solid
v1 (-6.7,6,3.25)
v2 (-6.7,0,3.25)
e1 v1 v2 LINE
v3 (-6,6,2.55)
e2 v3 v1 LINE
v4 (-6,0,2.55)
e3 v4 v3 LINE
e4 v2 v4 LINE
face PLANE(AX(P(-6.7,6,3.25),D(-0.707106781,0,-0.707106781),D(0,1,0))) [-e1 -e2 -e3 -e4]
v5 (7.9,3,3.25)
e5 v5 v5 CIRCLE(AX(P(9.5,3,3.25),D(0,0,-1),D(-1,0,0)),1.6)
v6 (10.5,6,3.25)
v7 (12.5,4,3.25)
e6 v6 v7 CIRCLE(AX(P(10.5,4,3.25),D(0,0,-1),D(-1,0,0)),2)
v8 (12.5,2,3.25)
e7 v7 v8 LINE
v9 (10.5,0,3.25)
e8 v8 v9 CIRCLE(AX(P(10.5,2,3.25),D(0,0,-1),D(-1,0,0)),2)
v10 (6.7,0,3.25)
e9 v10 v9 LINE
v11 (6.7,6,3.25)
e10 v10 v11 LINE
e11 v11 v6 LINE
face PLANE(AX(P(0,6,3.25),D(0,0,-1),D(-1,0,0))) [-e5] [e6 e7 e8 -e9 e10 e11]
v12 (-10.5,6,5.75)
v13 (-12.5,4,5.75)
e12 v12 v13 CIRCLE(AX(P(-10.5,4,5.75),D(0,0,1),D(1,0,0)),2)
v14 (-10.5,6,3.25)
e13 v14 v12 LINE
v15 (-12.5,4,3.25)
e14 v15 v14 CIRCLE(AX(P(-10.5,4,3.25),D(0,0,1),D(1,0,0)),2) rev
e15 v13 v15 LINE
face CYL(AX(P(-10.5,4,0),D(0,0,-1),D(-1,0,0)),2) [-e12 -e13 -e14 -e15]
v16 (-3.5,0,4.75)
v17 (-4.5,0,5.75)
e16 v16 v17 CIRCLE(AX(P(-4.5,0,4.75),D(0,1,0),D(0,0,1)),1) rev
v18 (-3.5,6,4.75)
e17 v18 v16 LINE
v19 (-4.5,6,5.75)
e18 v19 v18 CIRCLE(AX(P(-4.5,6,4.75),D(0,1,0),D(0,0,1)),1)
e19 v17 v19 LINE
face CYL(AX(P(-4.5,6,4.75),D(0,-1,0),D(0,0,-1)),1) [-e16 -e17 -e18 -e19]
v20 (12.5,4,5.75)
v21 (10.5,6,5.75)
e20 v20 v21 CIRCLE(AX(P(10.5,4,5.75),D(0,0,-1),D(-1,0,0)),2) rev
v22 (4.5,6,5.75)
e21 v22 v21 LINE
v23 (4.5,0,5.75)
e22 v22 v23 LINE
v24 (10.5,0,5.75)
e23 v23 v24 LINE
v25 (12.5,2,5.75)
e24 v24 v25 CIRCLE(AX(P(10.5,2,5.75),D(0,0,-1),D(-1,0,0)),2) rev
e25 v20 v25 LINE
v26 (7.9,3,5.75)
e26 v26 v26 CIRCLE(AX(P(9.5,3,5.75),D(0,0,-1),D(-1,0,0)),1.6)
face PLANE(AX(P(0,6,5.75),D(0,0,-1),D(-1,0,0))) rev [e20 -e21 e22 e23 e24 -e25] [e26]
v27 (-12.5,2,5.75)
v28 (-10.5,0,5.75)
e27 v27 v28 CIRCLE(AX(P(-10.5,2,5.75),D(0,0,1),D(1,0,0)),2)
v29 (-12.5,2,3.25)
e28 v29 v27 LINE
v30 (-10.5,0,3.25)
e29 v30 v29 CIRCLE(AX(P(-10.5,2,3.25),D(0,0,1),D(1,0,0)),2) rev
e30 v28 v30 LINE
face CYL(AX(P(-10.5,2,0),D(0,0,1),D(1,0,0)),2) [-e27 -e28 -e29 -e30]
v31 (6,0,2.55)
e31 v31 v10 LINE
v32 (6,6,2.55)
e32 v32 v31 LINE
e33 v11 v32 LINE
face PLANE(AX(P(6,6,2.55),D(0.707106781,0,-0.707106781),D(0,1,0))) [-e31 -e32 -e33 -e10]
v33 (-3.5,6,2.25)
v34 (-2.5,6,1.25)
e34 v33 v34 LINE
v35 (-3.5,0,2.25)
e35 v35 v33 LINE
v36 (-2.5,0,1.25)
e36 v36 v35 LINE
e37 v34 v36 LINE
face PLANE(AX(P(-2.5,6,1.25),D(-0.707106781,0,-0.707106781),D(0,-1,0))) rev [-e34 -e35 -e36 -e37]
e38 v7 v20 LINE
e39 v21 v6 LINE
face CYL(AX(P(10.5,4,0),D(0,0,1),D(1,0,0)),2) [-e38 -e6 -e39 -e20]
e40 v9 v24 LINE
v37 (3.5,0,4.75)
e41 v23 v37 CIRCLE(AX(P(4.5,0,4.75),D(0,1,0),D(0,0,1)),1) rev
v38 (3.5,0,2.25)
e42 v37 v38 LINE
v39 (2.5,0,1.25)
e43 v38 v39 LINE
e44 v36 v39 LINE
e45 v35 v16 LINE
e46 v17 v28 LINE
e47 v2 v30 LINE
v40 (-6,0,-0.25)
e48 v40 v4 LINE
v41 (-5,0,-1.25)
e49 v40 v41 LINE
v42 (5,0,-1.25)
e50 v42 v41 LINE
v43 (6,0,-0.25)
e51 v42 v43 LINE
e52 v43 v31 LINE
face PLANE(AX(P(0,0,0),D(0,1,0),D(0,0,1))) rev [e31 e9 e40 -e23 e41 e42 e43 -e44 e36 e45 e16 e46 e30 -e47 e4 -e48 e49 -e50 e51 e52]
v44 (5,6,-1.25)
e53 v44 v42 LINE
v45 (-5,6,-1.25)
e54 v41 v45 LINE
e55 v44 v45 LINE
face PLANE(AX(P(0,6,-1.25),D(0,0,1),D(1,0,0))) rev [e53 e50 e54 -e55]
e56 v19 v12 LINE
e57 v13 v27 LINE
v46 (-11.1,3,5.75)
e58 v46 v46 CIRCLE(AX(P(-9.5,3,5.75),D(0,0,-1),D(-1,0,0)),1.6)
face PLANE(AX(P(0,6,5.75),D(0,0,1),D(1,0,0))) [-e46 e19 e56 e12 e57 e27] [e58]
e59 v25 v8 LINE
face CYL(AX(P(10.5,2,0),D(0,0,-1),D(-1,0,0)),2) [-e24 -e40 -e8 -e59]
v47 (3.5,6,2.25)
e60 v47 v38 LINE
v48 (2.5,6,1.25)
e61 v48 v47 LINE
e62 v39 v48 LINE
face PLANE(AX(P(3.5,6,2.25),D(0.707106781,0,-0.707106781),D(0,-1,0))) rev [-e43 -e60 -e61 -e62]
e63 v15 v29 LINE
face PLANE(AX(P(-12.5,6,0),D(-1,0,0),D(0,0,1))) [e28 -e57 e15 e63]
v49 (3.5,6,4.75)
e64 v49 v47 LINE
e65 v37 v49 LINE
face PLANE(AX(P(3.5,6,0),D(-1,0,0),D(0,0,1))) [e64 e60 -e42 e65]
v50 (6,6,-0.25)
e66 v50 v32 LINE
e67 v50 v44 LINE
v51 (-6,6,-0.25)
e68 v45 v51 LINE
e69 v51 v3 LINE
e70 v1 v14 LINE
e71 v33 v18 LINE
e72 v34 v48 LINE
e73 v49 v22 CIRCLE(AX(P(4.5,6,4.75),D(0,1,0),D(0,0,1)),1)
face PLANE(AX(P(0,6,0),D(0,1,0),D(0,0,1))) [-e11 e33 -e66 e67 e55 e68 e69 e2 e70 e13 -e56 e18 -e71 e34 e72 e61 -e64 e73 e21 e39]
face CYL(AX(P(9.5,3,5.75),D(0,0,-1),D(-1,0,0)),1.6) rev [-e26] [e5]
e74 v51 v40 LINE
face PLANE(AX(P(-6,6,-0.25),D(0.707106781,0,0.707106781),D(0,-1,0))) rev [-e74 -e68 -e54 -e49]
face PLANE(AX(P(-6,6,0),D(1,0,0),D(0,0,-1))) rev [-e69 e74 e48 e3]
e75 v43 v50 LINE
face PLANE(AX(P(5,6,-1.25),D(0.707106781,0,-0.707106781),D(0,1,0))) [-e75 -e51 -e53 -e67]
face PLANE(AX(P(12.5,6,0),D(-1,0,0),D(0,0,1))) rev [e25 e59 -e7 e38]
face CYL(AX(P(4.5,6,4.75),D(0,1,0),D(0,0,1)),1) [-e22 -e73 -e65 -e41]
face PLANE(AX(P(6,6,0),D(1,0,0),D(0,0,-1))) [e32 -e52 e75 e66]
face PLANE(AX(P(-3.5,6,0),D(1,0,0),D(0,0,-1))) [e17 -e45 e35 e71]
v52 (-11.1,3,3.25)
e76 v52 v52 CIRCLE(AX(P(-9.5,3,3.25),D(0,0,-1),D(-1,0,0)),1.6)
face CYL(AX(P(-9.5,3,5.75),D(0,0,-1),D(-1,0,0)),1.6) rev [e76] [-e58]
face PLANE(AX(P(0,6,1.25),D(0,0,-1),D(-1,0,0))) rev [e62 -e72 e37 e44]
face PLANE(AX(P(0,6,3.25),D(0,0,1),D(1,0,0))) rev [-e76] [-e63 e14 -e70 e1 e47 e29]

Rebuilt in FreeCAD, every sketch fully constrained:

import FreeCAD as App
import Part
import Sketcher
from FreeCAD import Vector


def edges_at(feature, points):
    """Names of the edges that pass closest to the given points."""
    edges = feature.Shape.Edges
    near = lambda p: min(range(len(edges)), key=lambda i: edges[i].distToShape(Part.Vertex(*p))[0])
    return sorted({f"Edge{near(p) + 1}" for p in points})


def add_polygon(sketch, points):
    """Adds a closed chain of lines whose ends are joined by coincident constraints."""
    first, n = sketch.GeometryCount, len(points)
    for a, b in zip(points, points[1:] + points[:1]):
        sketch.addGeometry(Part.LineSegment(App.Vector(*a, 0), App.Vector(*b, 0)), False)
    for i in range(n):
        sketch.addConstraint(Sketcher.Constraint("Coincident", first + i, 2, first + (i + 1) % n, 1))

doc = App.newDocument("Part")
params = doc.addObject("Spreadsheet::Sheet", "Params")
for row, (alias, value) in enumerate([
    ("sketch1_width", "9 mm"),
    ("sketch1_width2", "7 mm"),
    ("sketch1_width3", "12 mm"),
    ("sketch1_height", "2.5 mm"),
    ("sketch1_height2", "4.5 mm"),
    ("pad1_length", "6 mm"),
    ("sketch2_diameter", "3.2 mm"),
    ("chamfer_size", "1 mm"),
    ("fillet_radius", "2 mm"),
    ("fillet2_radius", "1 mm"),
    ("chamfer2_size", "0.7 mm"),
], start=1):
    params.set(f"A{row}", alias)
    params.set(f"B{row}", "=" + value)
    params.setAlias(f"B{row}", alias)

body = doc.addObject("PartDesign::Body", "Body")

# Sketch on XZ plane
sketch1 = body.newObject("Sketcher::SketchObject", "Sketch")
sketch1.AttachmentSupport = (doc.getObject("XZ_Plane"), [""])
sketch1.MapMode = "FlatFace"
add_polygon(sketch1, [(-12.5, 3.2), (-12.5, 5.8), (-3.5, 5.8), (-3.5, 1.2), (3.5, 1.2), (3.5, 5.8), (12.5, 5.8), (12.5, 3.2), (6, 3.2), (6, -1.2), (-6, -1.2), (-6, 3.2)])  # lines 0-11
sketch1.addConstraint([
    Sketcher.Constraint("Vertical", 0),
    Sketcher.Constraint("Horizontal", 1),
    Sketcher.Constraint("Vertical", 2),
    Sketcher.Constraint("Horizontal", 3),
    Sketcher.Constraint("Vertical", 4),
    Sketcher.Constraint("Horizontal", 5),
    Sketcher.Constraint("Vertical", 6),
    Sketcher.Constraint("Horizontal", 7),
    Sketcher.Constraint("Vertical", 8),
    Sketcher.Constraint("Horizontal", 9),
    Sketcher.Constraint("Vertical", 10),
    Sketcher.Constraint("Horizontal", 11),
    Sketcher.Constraint("Symmetric", 1, 2, 4, 2, -2),
    Sketcher.Constraint("Symmetric", 7, 2, 10, 2, -2),
    Sketcher.Constraint("Equal", 1, 5),
    Sketcher.Constraint("Equal", 4, 8),
    Sketcher.Constraint("DistanceX", 1, 1, 1, 2, 9.0),
    Sketcher.Constraint("DistanceX", 3, 1, 3, 2, 7.0),
    Sketcher.Constraint("DistanceX", 9, 2, 9, 1, 12.0),
    Sketcher.Constraint("DistanceY", 0, 1, 0, 2, 2.5),
    Sketcher.Constraint("DistanceY", 2, 2, 2, 1, 4.5),
    Sketcher.Constraint("DistanceY", -1, 1, 0, 2, 5.75),
])
sketch1.setExpression("Constraints[28]", "Params.sketch1_width")
sketch1.setExpression("Constraints[29]", "Params.sketch1_width2")
sketch1.setExpression("Constraints[30]", "Params.sketch1_width3")
sketch1.setExpression("Constraints[31]", "Params.sketch1_height")
sketch1.setExpression("Constraints[32]", "Params.sketch1_height2")
pad1 = body.newObject("PartDesign::Pad", "Pad")
pad1.Profile = sketch1
pad1.setExpression("Length", "Params.pad1_length")
pad1.Reversed = True

# Sketch on XY plane
sketch2 = body.newObject("Sketcher::SketchObject", "Sketch001")
sketch2.AttachmentSupport = (doc.getObject("XY_Plane"), [""])
sketch2.MapMode = "FlatFace"
sketch2.AttachmentOffset = App.Placement(Vector(0, 0, 3.25), App.Rotation())
sketch2.addGeometry([
    Part.Circle(Vector(9.5, 3, 0), Vector(0, 0, 1), 1.6),
    Part.Circle(Vector(-9.5, 3, 0), Vector(0, 0, 1), 1.6),
], False)
sketch2.addConstraint([
    Sketcher.Constraint("Equal", 0, 1),
    Sketcher.Constraint("Symmetric", 0, 3, 1, 3, -2),
    Sketcher.Constraint("Diameter", 0, 3.2),
    Sketcher.Constraint("DistanceY", -1, 1, 0, 3, 3.0),
    Sketcher.Constraint("DistanceX", 1, 3, 0, 3, 19.0),
])
sketch2.setExpression("Constraints[2]", "Params.sketch2_diameter")
pocket1 = body.newObject("PartDesign::Pocket", "Pocket")
pocket1.Profile = sketch2
pocket1.Type = "ThroughAll"
pocket1.Reversed = True
doc.recompute()

chamfer = body.newObject("PartDesign::Chamfer", "Chamfer")
chamfer.Base = (pocket1, edges_at(pocket1, [
    (-6, 3, -1.25),
    (6, 3, -1.25),
    (3.5, 3, 1.25),
    (-3.5, 3, 1.25),
]))
chamfer.setExpression("Size", "Params.chamfer_size")
doc.recompute()

fillet = body.newObject("PartDesign::Fillet", "Fillet")
fillet.Base = (chamfer, edges_at(chamfer, [
    (12.5, 0, 4.5),
    (-12.5, 0, 4.5),
    (12.5, 6, 4.5),
    (-12.5, 6, 4.5),
]))
fillet.setExpression("Radius", "Params.fillet_radius")
doc.recompute()

fillet2 = body.newObject("PartDesign::Fillet", "Fillet001")
fillet2.Base = (fillet, edges_at(fillet, [(3.5, 3, 5.75), (-3.5, 3, 5.75)]))
fillet2.setExpression("Radius", "Params.fillet2_radius")
doc.recompute()

chamfer2 = body.newObject("PartDesign::Chamfer", "Chamfer001")
chamfer2.Base = (fillet2, edges_at(fillet2, [(-6, 3, 3.25), (6, 3, 3.25)]))
chamfer2.setExpression("Size", "Params.chamfer2_size")

doc.recompute()
